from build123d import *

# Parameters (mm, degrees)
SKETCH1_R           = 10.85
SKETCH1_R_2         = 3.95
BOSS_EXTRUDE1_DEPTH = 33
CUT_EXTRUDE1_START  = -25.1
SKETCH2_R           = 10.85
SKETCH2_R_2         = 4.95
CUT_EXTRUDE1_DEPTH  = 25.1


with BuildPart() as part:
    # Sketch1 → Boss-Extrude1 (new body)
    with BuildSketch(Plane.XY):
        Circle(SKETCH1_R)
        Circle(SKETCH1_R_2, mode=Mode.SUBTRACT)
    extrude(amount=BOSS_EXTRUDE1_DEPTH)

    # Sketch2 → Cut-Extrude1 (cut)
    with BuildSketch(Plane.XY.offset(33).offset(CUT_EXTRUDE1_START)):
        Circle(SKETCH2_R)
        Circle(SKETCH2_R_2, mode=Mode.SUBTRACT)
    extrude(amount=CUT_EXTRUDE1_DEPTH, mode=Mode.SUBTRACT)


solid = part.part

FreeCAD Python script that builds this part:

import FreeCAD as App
import Part
import Sketcher
Q = App.Units.Quantity

doc = App.newDocument("Part")
body = doc.addObject("PartDesign::Body", "Body")

# Sketch on XY plane
sketch1 = body.newObject("Sketcher::SketchObject", "Sketch")
sketch1.AttachmentSupport = (doc.getObject("XY_Plane"), [""])
sketch1.MapMode = "FlatFace"
sketch1.addGeometry(Part.Circle(App.Vector(0, 0, 0), App.Vector(0, 0, 1), 10.8), False)
sketch1.addGeometry(Part.Circle(App.Vector(0, 0, 0), App.Vector(0, 0, 1), 4), False)
sketch1.addConstraint(Sketcher.Constraint("Coincident", 0, 3, -1, 1))
sketch1.addConstraint(Sketcher.Constraint("Coincident", 1, 3, -1, 1))
sketch1.addConstraint(Sketcher.Constraint("Diameter", 0, Q("21.7 mm")))
sketch1.addConstraint(Sketcher.Constraint("Diameter", 1, Q("7.9 mm")))
pad1 = body.newObject("PartDesign::Pad", "Pad")
pad1.Profile = sketch1
pad1.Length = 33

# Sketch on XY plane
sketch2 = body.newObject("Sketcher::SketchObject", "Sketch001")
sketch2.AttachmentSupport = (doc.getObject("XY_Plane"), [""])
sketch2.MapMode = "FlatFace"
sketch2.AttachmentOffset = App.Placement(App.Vector(0, 0, 7.9), App.Rotation())
sketch2.addGeometry(Part.Circle(App.Vector(0, 0, 0), App.Vector(0, 0, 1), 10.8), False)
sketch2.addGeometry(Part.Circle(App.Vector(0, 0, 0), App.Vector(0, 0, 1), 5), False)
sketch2.addConstraint(Sketcher.Constraint("Coincident", 0, 3, -1, 1))
sketch2.addConstraint(Sketcher.Constraint("Coincident", 1, 3, -1, 1))
sketch2.addConstraint(Sketcher.Constraint("Diameter", 0, Q("21.7 mm")))
sketch2.addConstraint(Sketcher.Constraint("Diameter", 1, Q("9.9 mm")))
pocket1 = body.newObject("PartDesign::Pocket", "Pocket")
pocket1.Profile = sketch2
pocket1.Length = 25.1
pocket1.Reversed = True

doc.recompute()
